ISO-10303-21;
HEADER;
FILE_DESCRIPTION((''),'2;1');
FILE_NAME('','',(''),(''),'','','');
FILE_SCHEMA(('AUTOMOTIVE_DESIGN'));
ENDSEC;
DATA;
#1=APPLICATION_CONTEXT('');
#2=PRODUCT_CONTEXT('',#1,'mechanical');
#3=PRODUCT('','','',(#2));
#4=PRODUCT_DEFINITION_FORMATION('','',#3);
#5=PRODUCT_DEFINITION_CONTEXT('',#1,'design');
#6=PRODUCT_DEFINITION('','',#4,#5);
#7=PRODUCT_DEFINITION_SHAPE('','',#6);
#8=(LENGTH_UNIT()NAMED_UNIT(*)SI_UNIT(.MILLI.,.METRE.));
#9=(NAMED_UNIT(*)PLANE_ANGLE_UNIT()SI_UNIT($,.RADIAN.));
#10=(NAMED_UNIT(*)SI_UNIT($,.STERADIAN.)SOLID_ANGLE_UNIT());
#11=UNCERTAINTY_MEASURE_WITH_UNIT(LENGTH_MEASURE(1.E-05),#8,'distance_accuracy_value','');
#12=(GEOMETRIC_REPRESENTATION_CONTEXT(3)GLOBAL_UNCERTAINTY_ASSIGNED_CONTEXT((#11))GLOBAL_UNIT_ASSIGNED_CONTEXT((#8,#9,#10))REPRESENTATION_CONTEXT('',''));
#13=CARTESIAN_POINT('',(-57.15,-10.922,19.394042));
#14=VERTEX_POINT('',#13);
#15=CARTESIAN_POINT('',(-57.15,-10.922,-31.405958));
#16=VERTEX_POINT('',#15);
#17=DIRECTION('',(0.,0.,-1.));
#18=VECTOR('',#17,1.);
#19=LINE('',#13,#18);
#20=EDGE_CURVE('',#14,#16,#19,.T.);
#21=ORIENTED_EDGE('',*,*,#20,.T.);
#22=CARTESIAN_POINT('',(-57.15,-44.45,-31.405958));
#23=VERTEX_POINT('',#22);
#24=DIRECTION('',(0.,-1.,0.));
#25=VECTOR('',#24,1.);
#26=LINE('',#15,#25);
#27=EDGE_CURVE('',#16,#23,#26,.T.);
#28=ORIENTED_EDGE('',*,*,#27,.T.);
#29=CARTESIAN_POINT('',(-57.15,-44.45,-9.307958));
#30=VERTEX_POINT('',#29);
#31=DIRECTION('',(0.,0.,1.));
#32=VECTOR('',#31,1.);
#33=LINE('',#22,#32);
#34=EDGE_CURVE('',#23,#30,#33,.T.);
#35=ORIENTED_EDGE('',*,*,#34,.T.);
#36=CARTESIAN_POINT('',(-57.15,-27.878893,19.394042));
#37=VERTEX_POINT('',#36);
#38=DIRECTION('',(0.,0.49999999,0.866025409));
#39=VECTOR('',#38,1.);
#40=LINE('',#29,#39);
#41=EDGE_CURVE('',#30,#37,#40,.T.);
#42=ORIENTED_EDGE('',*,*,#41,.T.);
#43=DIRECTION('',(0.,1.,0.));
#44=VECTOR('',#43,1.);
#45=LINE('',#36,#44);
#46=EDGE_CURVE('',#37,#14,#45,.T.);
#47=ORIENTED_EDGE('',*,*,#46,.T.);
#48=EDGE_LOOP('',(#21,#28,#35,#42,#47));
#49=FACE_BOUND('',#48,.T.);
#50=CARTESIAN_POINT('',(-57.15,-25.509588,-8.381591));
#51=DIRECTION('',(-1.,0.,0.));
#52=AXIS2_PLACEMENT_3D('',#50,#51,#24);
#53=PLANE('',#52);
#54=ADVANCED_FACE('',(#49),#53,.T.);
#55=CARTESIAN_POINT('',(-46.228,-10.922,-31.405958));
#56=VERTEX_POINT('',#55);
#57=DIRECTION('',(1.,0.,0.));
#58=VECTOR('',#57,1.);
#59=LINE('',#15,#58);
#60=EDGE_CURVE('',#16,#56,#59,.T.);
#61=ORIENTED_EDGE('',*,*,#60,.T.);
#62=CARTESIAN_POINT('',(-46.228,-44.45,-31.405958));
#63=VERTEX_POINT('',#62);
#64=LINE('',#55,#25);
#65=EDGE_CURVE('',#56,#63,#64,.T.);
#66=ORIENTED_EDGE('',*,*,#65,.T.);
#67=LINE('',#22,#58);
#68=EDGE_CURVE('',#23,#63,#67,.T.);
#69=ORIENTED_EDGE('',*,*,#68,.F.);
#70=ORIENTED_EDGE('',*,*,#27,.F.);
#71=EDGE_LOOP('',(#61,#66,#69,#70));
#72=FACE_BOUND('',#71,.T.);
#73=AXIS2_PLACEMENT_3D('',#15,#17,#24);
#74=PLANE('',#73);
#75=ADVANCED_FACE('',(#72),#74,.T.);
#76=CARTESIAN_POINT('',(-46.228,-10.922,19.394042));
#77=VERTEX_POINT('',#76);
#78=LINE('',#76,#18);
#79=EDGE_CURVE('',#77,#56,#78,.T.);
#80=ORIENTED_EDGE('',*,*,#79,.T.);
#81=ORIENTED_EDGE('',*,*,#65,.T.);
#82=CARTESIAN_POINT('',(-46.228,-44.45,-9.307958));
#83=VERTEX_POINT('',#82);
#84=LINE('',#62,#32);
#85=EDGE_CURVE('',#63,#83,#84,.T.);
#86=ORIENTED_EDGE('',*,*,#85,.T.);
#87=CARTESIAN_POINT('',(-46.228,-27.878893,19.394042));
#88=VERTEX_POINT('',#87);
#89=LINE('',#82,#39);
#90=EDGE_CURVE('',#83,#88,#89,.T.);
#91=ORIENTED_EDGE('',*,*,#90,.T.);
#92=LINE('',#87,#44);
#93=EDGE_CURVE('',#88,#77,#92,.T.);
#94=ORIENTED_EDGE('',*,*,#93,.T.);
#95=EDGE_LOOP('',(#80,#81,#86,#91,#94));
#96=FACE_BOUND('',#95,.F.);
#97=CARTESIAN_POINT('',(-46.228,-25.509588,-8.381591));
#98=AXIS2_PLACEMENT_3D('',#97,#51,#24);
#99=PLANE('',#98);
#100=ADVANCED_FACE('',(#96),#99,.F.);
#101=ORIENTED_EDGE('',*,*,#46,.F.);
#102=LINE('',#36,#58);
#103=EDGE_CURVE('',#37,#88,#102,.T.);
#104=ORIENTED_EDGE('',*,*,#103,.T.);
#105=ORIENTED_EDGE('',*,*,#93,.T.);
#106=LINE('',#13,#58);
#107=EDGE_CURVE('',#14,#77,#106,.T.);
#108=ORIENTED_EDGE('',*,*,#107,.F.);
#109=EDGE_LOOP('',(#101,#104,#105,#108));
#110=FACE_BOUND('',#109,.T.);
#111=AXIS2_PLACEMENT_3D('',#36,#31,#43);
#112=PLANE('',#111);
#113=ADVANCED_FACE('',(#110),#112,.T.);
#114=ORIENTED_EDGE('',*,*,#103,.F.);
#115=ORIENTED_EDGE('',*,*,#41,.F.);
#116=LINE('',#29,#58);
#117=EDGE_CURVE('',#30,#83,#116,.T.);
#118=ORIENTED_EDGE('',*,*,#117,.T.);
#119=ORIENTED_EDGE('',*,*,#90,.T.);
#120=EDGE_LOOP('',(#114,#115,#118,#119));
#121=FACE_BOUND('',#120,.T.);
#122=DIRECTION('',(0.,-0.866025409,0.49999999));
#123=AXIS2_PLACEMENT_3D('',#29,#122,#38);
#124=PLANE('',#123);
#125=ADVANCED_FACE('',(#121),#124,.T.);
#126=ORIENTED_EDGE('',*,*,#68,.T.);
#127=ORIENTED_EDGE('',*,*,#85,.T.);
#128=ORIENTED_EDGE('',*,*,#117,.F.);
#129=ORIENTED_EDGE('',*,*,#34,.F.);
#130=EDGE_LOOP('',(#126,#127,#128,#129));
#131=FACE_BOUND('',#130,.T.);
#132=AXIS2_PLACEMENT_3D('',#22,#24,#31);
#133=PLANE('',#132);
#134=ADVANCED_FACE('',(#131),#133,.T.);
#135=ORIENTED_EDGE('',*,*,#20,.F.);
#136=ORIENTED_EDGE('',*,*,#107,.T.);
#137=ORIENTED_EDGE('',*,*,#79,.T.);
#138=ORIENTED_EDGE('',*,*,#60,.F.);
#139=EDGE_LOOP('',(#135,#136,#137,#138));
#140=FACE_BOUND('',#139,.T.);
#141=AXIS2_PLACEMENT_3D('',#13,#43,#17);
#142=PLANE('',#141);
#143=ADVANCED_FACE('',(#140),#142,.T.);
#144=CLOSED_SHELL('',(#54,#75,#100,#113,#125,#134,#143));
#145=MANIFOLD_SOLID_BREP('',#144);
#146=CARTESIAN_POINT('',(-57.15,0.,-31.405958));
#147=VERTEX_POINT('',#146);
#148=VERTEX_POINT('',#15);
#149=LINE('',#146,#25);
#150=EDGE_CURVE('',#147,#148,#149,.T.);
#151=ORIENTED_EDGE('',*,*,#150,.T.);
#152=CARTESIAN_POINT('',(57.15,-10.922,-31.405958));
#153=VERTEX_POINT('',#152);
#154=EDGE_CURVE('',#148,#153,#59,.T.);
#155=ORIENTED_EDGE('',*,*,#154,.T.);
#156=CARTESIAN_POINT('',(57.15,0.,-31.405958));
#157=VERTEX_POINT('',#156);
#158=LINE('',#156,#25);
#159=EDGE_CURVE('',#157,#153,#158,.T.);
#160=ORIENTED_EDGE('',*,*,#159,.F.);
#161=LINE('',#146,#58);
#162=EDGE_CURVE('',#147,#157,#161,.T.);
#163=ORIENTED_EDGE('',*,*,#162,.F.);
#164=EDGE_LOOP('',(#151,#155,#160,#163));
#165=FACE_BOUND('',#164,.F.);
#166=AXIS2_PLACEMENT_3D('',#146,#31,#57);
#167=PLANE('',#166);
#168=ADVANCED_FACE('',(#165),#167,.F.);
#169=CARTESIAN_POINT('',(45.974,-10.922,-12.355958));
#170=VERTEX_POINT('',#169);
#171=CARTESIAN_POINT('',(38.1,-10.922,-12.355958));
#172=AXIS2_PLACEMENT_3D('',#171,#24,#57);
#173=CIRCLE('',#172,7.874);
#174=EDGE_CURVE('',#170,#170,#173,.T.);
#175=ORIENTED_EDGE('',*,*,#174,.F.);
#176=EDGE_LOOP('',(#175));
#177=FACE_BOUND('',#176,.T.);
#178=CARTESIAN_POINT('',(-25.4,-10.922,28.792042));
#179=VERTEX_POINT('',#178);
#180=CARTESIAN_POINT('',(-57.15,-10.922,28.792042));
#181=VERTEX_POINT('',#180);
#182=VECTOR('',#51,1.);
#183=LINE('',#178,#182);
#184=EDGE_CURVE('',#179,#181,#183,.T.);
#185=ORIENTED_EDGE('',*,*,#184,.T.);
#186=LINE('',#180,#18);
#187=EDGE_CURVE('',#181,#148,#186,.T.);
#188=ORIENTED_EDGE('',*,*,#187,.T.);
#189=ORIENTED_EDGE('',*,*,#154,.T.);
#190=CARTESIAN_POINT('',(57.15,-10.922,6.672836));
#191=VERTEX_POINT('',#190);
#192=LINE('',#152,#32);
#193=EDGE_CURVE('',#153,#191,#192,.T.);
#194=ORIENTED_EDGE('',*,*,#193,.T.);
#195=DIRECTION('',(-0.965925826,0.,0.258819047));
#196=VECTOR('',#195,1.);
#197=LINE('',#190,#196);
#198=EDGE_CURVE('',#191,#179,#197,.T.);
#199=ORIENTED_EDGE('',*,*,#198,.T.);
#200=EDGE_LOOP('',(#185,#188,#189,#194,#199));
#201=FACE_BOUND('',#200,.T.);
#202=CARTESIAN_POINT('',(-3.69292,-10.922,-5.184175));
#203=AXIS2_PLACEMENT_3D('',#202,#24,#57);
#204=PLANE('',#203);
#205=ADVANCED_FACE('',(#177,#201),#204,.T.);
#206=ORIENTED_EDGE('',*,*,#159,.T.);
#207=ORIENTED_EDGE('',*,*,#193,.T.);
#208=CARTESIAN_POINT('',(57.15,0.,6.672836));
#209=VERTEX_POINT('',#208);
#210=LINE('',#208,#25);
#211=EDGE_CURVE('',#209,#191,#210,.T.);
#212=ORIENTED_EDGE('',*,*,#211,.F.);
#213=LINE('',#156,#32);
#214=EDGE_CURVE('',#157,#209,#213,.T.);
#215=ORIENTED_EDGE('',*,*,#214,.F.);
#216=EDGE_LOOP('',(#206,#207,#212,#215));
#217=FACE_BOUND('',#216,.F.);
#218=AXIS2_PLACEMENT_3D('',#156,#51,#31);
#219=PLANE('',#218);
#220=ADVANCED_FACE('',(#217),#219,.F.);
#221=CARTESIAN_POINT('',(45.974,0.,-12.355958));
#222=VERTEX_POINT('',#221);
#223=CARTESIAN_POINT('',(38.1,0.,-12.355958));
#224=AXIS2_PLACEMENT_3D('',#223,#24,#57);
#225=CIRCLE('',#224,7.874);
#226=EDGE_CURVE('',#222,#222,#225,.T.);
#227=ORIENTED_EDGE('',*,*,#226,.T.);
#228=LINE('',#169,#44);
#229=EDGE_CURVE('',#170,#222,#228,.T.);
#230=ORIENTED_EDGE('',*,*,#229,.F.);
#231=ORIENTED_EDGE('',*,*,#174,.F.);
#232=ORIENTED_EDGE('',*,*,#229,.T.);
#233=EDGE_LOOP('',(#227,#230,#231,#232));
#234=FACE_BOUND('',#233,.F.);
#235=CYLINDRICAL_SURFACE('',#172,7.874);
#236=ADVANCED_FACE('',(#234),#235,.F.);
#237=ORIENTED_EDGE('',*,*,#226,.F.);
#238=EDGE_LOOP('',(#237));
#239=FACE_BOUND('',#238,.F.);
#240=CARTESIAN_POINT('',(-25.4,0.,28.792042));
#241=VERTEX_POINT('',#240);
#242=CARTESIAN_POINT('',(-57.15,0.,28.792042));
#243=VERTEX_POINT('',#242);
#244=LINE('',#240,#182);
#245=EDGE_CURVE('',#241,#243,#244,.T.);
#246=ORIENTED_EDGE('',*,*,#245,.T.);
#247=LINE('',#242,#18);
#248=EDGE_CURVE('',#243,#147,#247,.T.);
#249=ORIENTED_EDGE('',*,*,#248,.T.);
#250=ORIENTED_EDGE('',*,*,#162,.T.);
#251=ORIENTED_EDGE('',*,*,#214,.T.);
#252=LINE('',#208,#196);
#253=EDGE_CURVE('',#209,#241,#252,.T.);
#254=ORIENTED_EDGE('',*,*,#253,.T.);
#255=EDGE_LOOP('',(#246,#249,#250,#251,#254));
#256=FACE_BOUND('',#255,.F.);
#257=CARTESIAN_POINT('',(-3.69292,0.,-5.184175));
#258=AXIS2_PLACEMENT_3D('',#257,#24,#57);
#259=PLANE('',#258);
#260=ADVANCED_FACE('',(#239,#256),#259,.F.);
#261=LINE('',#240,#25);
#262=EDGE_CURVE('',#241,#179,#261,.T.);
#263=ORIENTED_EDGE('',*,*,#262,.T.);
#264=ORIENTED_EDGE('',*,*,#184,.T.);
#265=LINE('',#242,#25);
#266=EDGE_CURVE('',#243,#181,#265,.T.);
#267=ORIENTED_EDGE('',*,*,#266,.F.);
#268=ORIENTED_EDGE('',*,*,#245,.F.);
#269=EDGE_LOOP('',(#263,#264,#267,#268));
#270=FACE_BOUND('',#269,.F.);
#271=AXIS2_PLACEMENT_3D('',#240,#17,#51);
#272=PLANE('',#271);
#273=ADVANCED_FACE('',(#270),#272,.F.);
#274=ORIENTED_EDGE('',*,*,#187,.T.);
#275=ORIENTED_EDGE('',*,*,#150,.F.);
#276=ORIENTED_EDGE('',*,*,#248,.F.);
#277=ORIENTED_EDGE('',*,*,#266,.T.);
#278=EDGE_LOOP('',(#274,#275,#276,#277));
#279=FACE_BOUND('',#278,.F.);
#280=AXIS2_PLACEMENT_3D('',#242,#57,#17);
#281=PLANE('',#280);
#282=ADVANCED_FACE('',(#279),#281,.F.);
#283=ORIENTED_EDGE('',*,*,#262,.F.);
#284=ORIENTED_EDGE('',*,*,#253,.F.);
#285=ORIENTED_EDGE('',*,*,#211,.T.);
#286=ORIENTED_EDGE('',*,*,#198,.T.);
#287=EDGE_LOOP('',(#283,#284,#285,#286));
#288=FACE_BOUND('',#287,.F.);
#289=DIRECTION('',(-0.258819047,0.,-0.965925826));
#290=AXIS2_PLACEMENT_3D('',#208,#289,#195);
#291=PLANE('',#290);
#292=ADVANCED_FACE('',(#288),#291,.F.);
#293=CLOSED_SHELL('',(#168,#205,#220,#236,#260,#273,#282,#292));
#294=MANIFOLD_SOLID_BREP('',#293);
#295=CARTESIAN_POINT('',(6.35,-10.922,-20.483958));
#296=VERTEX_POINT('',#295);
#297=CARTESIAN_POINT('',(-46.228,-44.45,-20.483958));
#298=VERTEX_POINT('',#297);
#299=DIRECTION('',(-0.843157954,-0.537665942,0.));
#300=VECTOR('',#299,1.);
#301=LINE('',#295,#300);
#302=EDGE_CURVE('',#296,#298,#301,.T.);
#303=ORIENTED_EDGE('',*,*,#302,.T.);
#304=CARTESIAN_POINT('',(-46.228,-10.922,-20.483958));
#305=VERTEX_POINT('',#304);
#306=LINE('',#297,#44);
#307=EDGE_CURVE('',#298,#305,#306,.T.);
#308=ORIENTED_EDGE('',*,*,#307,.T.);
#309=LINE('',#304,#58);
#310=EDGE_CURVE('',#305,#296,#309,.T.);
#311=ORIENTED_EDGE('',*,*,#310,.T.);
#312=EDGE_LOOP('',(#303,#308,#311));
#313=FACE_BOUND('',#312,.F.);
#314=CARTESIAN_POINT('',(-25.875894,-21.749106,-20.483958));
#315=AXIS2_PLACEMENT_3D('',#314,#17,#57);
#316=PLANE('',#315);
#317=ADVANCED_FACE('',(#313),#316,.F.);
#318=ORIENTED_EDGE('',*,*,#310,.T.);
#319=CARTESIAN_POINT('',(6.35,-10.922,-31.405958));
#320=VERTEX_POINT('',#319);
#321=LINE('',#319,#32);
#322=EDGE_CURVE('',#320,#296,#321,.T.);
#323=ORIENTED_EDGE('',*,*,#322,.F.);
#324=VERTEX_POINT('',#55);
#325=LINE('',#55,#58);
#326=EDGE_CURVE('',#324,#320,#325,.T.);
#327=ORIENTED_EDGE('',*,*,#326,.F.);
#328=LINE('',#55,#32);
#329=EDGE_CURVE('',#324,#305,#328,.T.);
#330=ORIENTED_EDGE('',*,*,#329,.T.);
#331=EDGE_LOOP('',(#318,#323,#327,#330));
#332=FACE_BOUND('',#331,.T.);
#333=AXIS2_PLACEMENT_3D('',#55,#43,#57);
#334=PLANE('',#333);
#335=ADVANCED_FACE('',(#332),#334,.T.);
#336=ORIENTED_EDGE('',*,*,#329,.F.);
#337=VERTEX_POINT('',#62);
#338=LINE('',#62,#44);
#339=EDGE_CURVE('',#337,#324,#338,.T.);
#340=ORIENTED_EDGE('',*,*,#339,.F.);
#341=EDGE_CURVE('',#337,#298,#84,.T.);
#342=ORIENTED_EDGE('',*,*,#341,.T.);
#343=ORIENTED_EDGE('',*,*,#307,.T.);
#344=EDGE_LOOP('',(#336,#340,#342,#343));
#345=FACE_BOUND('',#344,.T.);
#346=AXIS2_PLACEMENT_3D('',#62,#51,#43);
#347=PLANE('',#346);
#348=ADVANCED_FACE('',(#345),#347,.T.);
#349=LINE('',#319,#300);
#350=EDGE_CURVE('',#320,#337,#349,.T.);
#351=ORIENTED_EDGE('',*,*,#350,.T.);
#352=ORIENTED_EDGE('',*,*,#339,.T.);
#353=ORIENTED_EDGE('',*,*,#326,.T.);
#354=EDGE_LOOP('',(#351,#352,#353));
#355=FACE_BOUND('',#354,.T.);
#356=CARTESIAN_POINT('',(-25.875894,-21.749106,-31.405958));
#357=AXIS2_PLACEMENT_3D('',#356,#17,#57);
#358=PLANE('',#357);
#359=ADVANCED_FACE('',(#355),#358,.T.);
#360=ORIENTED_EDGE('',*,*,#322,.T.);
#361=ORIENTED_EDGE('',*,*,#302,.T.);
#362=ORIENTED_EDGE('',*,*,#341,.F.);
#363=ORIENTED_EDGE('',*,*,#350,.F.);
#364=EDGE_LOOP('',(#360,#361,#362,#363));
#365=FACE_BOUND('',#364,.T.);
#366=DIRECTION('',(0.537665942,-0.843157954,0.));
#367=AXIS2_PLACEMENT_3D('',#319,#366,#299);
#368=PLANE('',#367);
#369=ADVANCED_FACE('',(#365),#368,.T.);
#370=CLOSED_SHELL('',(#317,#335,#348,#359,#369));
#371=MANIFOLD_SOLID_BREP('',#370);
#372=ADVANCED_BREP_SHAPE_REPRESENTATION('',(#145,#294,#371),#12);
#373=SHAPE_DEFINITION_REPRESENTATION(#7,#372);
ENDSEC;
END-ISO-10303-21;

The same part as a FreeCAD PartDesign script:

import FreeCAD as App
import Part
import Sketcher

V = App.Vector
Q = App.Units.Quantity

doc = App.newDocument("Part")
body = doc.addObject("PartDesign::Body", "Body")

sketch1 = body.newObject("Sketcher::SketchObject", "Sketch")
sketch1.AttachmentSupport = (doc.getObject("XZ_Plane"), [""])
sketch1.MapMode = "FlatFace"
sketch1.addGeometry([
    Part.LineSegment(V(-57, -31, 0), V(57, -31, 0)),
    Part.LineSegment(V(57, -31, 0), V(57, 7, 0)),
    Part.LineSegment(V(57, 7, 0), V(-25, 29, 0)),
    Part.LineSegment(V(-25, 29, 0), V(-57, 29, 0)),
    Part.LineSegment(V(-57, 29, 0), V(-57, -31, 0)),
], False)
sketch1.addConstraint([
    Sketcher.Constraint("Coincident", 0, 2, 1, 1),
    Sketcher.Constraint("Coincident", 1, 2, 2, 1),
    Sketcher.Constraint("Coincident", 2, 2, 3, 1),
    Sketcher.Constraint("Coincident", 3, 2, 4, 1),
    Sketcher.Constraint("Coincident", 4, 2, 0, 1),
    Sketcher.Constraint("Horizontal", 0),
    Sketcher.Constraint("Vertical", 1),
    Sketcher.Constraint("Horizontal", 3),
    Sketcher.Constraint("Vertical", 4),
    Sketcher.Constraint("DistanceX", 0, 1, 0, 2, Q("4.5 in")),
    Sketcher.Constraint("DistanceX", 2, 2, -1, 1, Q("1 in")),
    Sketcher.Constraint("Angle", 2, Q("165 deg")),
    Sketcher.Constraint("DistanceX", 3, 2, 3, 1, Q("1.25 in")),
    Sketcher.Constraint("DistanceY", 4, 2, 4, 1, Q("2.37 in")),
    Sketcher.Constraint("DistanceY", -1, 1, 2, 2, Q("28.792042 mm")),
])
pad1 = body.newObject("PartDesign::Pad", "Pad")
pad1.Profile = sketch1
pad1.Length = Q("0.43 in")

sketch2 = body.newObject("Sketcher::SketchObject", "Sketch001")
sketch2.AttachmentSupport = (doc.getObject("XZ_Plane"), [""])
sketch2.MapMode = "FlatFace"
sketch2.AttachmentOffset = App.Placement(V(0, 0, 0.43 * 25.4), App.Rotation())
sketch2.addGeometry(Part.Circle(V(38, -12, 0), V(0, 0, 1), 8), False)
sketch2.addConstraint([
    Sketcher.Constraint("Diameter", 0, Q("0.62 in")),
    Sketcher.Constraint("DistanceX", -1, 1, 0, 3, Q("1.5 in")),
    Sketcher.Constraint("DistanceY", 0, 3, -1, 1, Q("12.355958 mm")),
])
pocket1 = body.newObject("PartDesign::Pocket", "Pocket")
pocket1.Profile = sketch2
pocket1.Type = "ThroughAll"
body2 = doc.addObject("PartDesign::Body", "Body001")

sketch3 = body2.newObject("Sketcher::SketchObject", "Sketch002")
sketch3.AttachmentSupport = (doc.getObject("XY_Plane001"), [""])
sketch3.MapMode = "FlatFace"
sketch3.AttachmentOffset = App.Placement(V(0, 0, -31.405958), App.Rotation())
sketch3.addGeometry([
    Part.LineSegment(V(-46, -44, 0), V(-46, -11, 0)),
    Part.LineSegment(V(-46, -11, 0), V(6, -11, 0)),
    Part.LineSegment(V(6, -11, 0), V(-46, -44, 0)),
], False)
sketch3.addConstraint([
    Sketcher.Constraint("Coincident", 0, 2, 1, 1),
    Sketcher.Constraint("Coincident", 1, 2, 2, 1),
    Sketcher.Constraint("Coincident", 2, 2, 0, 1),
    Sketcher.Constraint("Vertical", 0),
    Sketcher.Constraint("Horizontal", 1),
    Sketcher.Constraint("DistanceX", 1, 1, 1, 2, Q("2.07 in")),
    Sketcher.Constraint("DistanceY", 0, 1, 0, 2, Q("1.32 in")),
    Sketcher.Constraint("DistanceX", 0, 2, -1, 1, Q("1.82 in")),
    Sketcher.Constraint("DistanceY", 0, 2, -1, 1, Q("0.43 in")),
])
pad2 = body2.newObject("PartDesign::Pad", "Pad001")
pad2.Profile = sketch3
pad2.Length = Q("0.43 in")
body3 = doc.addObject("PartDesign::Body", "Body002")

sketch4 = body3.newObject("Sketcher::SketchObject", "Sketch003")
sketch4.AttachmentSupport = (doc.getObject("YZ_Plane002"), [""])
sketch4.MapMode = "FlatFace"
sketch4.AttachmentOffset = App.Placement(V(0, 0, -2.25 * 25.4), App.Rotation())
sketch4.addGeometry([
    Part.LineSegment(V(-11, 19, 0), V(-11, -31, 0)),
    Part.LineSegment(V(-11, -31, 0), V(-44, -31, 0)),
    Part.LineSegment(V(-44, -31, 0), V(-44, -9, 0)),
    Part.LineSegment(V(-44, -9, 0), V(-28, 19, 0)),
    Part.LineSegment(V(-28, 19, 0), V(-11, 19, 0)),
], False)
sketch4.addConstraint([
    Sketcher.Constraint("Coincident", 0, 2, 1, 1),
    Sketcher.Constraint("Coincident", 1, 2, 2, 1),
    Sketcher.Constraint("Coincident", 2, 2, 3, 1),
    Sketcher.Constraint("Coincident", 3, 2, 4, 1),
    Sketcher.Constraint("Coincident", 4, 2, 0, 1),
    Sketcher.Constraint("Vertical", 0),
    Sketcher.Constraint("Horizontal", 1),
    Sketcher.Constraint("Vertical", 2),
    Sketcher.Constraint("Horizontal", 4),
    Sketcher.Constraint("DistanceY", 0, 2, 0, 1, Q("2 in")),
    Sketcher.Constraint("Angle", 3, Q("60.000001 deg")),
    Sketcher.Constraint("DistanceX", 1, 2, 1, 1, Q("1.32 in")),
    Sketcher.Constraint("DistanceY", 2, 1, 2, 2, Q("0.87 in")),
    Sketcher.Constraint("DistanceX", 0, 2, -1, 1, Q("0.43 in")),
    Sketcher.Constraint("DistanceY", -1, 1, 3, 2, Q("19.394042 mm")),
])
pad3 = body3.newObject("PartDesign::Pad", "Pad002")
pad3.Profile = sketch4
pad3.Length = Q("0.43 in")

doc.recompute()
